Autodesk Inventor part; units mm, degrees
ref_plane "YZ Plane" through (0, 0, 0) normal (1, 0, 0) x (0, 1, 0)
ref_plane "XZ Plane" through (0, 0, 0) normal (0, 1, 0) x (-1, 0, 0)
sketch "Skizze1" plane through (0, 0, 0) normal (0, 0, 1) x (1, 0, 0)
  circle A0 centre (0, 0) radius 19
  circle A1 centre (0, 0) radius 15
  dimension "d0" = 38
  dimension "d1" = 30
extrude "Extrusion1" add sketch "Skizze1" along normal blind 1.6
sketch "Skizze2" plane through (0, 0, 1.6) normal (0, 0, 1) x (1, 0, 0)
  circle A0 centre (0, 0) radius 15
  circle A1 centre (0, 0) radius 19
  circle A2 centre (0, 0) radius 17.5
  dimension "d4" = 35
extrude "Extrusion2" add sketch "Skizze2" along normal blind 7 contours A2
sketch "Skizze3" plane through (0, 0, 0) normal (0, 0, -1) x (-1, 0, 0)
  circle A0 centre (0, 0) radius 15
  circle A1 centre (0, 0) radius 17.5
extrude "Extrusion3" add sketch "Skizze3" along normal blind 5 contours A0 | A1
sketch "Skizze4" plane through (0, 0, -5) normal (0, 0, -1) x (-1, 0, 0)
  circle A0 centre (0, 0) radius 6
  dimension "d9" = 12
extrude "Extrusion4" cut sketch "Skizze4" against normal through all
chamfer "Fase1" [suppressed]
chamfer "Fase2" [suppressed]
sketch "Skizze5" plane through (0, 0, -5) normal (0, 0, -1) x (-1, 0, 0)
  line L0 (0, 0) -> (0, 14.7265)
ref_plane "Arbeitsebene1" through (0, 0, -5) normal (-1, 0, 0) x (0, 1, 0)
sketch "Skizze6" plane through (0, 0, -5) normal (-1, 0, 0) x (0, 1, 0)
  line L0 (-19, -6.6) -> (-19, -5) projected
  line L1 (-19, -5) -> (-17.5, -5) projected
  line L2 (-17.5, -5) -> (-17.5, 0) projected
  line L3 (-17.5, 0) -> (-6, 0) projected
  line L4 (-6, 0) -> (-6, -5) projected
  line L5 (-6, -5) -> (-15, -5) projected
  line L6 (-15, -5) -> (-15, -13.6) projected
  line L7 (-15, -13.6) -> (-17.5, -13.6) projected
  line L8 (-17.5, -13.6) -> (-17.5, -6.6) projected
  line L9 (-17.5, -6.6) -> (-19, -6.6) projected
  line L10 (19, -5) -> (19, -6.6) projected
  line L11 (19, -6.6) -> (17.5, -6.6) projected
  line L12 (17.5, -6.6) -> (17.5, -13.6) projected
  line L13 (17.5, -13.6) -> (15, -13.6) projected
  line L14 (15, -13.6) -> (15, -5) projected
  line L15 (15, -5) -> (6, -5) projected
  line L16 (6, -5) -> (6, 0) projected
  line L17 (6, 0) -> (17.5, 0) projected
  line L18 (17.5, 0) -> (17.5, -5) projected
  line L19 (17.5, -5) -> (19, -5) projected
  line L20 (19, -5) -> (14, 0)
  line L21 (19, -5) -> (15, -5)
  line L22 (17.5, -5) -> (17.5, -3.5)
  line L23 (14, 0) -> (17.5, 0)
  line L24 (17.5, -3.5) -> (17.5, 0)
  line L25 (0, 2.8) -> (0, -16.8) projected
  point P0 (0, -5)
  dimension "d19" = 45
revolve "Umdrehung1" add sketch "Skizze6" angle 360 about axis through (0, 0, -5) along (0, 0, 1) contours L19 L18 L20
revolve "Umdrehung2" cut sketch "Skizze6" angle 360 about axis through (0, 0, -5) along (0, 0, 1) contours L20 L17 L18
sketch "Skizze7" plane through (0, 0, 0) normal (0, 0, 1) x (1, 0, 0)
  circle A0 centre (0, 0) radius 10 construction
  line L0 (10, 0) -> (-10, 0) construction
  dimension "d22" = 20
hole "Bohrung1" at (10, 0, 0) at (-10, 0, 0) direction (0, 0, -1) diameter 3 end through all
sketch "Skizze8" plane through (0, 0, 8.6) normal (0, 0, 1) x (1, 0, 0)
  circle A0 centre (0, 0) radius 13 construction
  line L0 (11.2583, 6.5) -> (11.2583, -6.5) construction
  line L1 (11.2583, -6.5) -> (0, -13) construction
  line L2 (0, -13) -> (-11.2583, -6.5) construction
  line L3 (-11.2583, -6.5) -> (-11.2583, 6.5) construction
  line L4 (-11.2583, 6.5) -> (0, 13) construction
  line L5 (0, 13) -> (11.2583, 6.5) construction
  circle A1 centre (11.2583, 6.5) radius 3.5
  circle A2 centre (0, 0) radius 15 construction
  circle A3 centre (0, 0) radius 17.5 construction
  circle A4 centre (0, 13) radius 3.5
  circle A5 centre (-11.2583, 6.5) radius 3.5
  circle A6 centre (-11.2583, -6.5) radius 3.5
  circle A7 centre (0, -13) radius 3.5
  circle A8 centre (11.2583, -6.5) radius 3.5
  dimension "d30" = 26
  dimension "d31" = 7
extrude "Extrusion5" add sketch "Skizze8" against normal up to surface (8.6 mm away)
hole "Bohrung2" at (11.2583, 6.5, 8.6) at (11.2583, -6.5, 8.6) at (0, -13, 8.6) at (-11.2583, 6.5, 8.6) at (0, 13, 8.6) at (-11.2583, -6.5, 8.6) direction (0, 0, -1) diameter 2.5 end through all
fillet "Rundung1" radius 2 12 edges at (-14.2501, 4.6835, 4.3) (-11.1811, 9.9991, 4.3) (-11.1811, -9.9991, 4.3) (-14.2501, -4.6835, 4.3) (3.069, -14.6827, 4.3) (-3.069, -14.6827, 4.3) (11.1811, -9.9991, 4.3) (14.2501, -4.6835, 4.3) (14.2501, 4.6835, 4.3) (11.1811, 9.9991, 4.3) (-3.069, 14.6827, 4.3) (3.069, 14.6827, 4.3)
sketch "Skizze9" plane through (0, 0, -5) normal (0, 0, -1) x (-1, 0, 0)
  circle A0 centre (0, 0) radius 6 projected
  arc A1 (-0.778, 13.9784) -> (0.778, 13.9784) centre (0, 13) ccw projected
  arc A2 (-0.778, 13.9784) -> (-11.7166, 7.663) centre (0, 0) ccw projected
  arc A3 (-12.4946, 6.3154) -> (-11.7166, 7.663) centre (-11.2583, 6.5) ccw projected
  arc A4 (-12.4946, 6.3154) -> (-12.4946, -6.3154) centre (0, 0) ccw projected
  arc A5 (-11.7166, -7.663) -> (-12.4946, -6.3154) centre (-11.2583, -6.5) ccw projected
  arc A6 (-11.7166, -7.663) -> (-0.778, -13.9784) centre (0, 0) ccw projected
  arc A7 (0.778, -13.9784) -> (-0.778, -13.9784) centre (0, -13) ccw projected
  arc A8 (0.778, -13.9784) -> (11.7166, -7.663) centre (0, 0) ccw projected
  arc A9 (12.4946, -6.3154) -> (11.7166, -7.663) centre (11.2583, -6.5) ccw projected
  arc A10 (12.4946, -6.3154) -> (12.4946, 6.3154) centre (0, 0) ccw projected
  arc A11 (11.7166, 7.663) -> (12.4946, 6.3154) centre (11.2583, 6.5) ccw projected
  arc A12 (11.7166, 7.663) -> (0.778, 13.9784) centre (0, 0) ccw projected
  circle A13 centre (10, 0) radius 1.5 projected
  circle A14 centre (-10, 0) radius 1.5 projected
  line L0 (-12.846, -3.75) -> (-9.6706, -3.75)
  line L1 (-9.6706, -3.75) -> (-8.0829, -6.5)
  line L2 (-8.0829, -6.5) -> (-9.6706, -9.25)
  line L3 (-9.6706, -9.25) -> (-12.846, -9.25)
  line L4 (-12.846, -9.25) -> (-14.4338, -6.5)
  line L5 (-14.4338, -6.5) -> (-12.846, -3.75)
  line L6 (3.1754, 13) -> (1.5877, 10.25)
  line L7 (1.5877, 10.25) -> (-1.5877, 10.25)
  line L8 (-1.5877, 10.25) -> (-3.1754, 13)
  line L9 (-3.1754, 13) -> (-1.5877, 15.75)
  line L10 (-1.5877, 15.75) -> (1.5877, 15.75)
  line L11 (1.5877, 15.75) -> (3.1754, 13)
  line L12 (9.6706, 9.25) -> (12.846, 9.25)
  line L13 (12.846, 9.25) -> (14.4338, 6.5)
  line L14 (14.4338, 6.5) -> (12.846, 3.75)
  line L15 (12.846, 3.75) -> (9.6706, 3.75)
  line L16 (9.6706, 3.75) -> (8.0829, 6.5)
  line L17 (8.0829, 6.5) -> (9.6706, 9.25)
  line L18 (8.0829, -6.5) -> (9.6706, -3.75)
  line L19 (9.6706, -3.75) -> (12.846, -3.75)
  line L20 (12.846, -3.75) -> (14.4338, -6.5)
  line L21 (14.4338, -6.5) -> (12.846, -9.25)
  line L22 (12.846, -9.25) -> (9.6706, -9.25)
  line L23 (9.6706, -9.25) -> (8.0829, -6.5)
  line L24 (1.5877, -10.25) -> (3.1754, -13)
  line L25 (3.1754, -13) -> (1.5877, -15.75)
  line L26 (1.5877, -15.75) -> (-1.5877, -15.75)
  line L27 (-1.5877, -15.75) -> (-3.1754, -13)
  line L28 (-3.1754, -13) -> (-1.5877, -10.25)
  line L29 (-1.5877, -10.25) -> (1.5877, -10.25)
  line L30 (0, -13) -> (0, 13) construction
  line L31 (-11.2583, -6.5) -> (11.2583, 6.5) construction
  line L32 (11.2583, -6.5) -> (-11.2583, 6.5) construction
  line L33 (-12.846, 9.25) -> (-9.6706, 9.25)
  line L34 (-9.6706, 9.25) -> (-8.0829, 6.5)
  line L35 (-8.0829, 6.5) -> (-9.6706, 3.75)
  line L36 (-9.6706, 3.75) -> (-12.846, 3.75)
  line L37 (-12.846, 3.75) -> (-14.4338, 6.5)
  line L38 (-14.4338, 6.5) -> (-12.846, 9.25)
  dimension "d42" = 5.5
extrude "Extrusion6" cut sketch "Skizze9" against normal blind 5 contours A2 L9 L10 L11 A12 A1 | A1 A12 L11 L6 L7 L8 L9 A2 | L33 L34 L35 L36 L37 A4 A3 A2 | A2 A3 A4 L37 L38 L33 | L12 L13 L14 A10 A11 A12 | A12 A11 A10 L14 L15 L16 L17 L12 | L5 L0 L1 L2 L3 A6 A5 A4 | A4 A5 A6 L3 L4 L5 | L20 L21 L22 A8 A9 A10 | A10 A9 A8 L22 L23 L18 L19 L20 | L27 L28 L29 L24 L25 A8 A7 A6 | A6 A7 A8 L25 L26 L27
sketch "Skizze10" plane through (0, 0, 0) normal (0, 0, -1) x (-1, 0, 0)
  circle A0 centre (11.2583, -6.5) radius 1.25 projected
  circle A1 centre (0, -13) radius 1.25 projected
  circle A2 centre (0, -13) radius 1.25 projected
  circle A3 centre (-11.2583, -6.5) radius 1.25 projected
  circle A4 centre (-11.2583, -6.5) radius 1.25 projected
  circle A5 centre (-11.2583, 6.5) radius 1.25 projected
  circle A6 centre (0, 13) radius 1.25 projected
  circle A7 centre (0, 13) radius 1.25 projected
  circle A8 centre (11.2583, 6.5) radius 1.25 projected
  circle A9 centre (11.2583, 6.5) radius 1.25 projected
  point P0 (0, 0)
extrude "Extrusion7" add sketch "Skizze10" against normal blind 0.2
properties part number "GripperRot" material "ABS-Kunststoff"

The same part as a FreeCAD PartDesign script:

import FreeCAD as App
import Part
import Sketcher

V = App.Vector
Q = App.Units.Quantity


def edges_at(feature, points):
    """Names of the edges that pass closest to the given points."""
    edges = feature.Shape.Edges
    near = lambda p: min(range(len(edges)), key=lambda i: edges[i].distToShape(Part.Vertex(*p))[0])
    return sorted({f"Edge{near(p) + 1}" for p in points})


def add_polygon(sketch, points):
    """Adds a closed chain of lines whose ends are joined by coincident constraints."""
    first, n = sketch.GeometryCount, len(points)
    for a, b in zip(points, points[1:] + points[:1]):
        sketch.addGeometry(Part.LineSegment(App.Vector(*a, 0), App.Vector(*b, 0)), False)
    for i in range(n):
        sketch.addConstraint(Sketcher.Constraint("Coincident", first + i, 2, first + (i + 1) % n, 1))

doc = App.newDocument("Part")
params = doc.addObject("Spreadsheet::Sheet", "Params")
for row, (alias, value) in enumerate([
    ("sketch1_diameter", "38 mm"),
    ("sketch1_diameter2", "30 mm"),
    ("pad1_length", "1.6 mm"),
    ("sketch2_diameter", "35 mm"),
    ("sketch2_diameter2", "30 mm"),
    ("pad2_length", "7 mm"),
    ("sketch3_diameter", "35 mm"),
    ("pad3_length", "5 mm"),
    ("sketch4_diameter", "12 mm"),
    ("sketch5_width", "1.5 mm"),
    ("revolution_angle", "360 deg"),
    ("sketch6_width", "3.5 mm"),
    ("groove_angle", "360 deg"),
    ("sketch7_diameter", "3 mm"),
    ("hole_diameter", "3 mm"),
    ("sketch8_diameter", "7 mm"),
    ("pad4_length", "8.6 mm"),
    ("sketch9_diameter", "2.5 mm"),
    ("hole2_diameter", "2.5 mm"),
    ("fillet_radius", "2 mm"),
    ("pocket2_length", "5 mm"),
    ("sketch11_diameter", "2.5 mm"),
    ("pad5_length", "0.2 mm"),
], start=1):
    params.set(f"A{row}", alias)
    params.set(f"B{row}", "=" + value)
    params.setAlias(f"B{row}", alias)

body = doc.addObject("PartDesign::Body", "Body")

sketch1 = doc.addObject("Sketcher::SketchObject", "Sketch")
body.addObject(sketch1)
sketch1.AttachmentSupport = (doc.XY_Plane, [""])
sketch1.MapMode = "FlatFace"
sketch1.addGeometry(Part.Circle(V(0, 0, 0), V(0, 0, 1), 19), False)
sketch1.addGeometry(Part.Circle(V(0, 0, 0), V(0, 0, 1), 15), False)
sketch1.addConstraint(Sketcher.Constraint("Coincident", 0, 3, -1, 1))
sketch1.addConstraint(Sketcher.Constraint("Coincident", 1, 3, -1, 1))
sketch1.addConstraint(Sketcher.Constraint("Diameter", 0, Q("38 mm")))
sketch1.addConstraint(Sketcher.Constraint("Diameter", 1, Q("30 mm")))
sketch1.setExpression("Constraints[2]", "Params.sketch1_diameter")
sketch1.setExpression("Constraints[3]", "Params.sketch1_diameter2")
pad1 = doc.addObject("PartDesign::Pad", "Pad")
body.addObject(pad1)
pad1.Profile = sketch1
pad1.setExpression("Length", "Params.pad1_length")

sketch2 = doc.addObject("Sketcher::SketchObject", "Sketch001")
body.addObject(sketch2)
sketch2.AttachmentSupport = (doc.XY_Plane, [""])
sketch2.MapMode = "FlatFace"
sketch2.AttachmentOffset = App.Placement(V(0, 0, 1.6), App.Rotation())
sketch2.addGeometry(Part.Circle(V(0, 0, 0), V(0, 0, 1), 17.5), False)
sketch2.addGeometry(Part.Circle(V(0, 0, 0), V(0, 0, 1), 15), False)
sketch2.addConstraint(Sketcher.Constraint("Coincident", 0, 3, -1, 1))
sketch2.addConstraint(Sketcher.Constraint("Coincident", 1, 3, -1, 1))
sketch2.addConstraint(Sketcher.Constraint("Diameter", 0, Q("35 mm")))
sketch2.addConstraint(Sketcher.Constraint("Diameter", 1, Q("30 mm")))
sketch2.setExpression("Constraints[2]", "Params.sketch2_diameter")
sketch2.setExpression("Constraints[3]", "Params.sketch2_diameter2")
pad2 = doc.addObject("PartDesign::Pad", "Pad001")
body.addObject(pad2)
pad2.Profile = sketch2
pad2.setExpression("Length", "Params.pad2_length")

sketch3 = doc.addObject("Sketcher::SketchObject", "Sketch002")
body.addObject(sketch3)
sketch3.AttachmentSupport = (doc.XY_Plane, [""])
sketch3.MapMode = "FlatFace"
sketch3.addGeometry(Part.Circle(V(0, 0, 0), V(0, 0, 1), 17.5), False)
sketch3.addConstraint(Sketcher.Constraint("Coincident", 0, 3, -1, 1))
sketch3.addConstraint(Sketcher.Constraint("Diameter", 0, Q("35 mm")))
sketch3.setExpression("Constraints[1]", "Params.sketch3_diameter")
pad3 = doc.addObject("PartDesign::Pad", "Pad002")
body.addObject(pad3)
pad3.Profile = sketch3
pad3.setExpression("Length", "Params.pad3_length")
pad3.Reversed = True

sketch4 = doc.addObject("Sketcher::SketchObject", "Sketch003")
body.addObject(sketch4)
sketch4.AttachmentSupport = (doc.XY_Plane, [""])
sketch4.MapMode = "FlatFace"
sketch4.AttachmentOffset = App.Placement(V(0, 0, -5), App.Rotation())
sketch4.addGeometry(Part.Circle(V(0, 0, 0), V(0, 0, 1), 6), False)
sketch4.addConstraint(Sketcher.Constraint("Coincident", 0, 3, -1, 1))
sketch4.addConstraint(Sketcher.Constraint("Diameter", 0, Q("12 mm")))
sketch4.setExpression("Constraints[1]", "Params.sketch4_diameter")
pocket1 = doc.addObject("PartDesign::Pocket", "Pocket")
body.addObject(pocket1)
pocket1.Profile = sketch4
pocket1.Type = "ThroughAll"
pocket1.Reversed = True

sketch5 = doc.addObject("Sketcher::SketchObject", "Sketch004")
body.addObject(sketch5)
sketch5.AttachmentSupport = (doc.YZ_Plane, [""])
sketch5.MapMode = "FlatFace"
add_polygon(sketch5, [(17.5, 0), (19, 0), (17.5, -1.5)])
sketch5.addConstraint(Sketcher.Constraint("Horizontal", 0))
sketch5.addConstraint(Sketcher.Constraint("Vertical", 2))
sketch5.addConstraint(Sketcher.Constraint("PointOnObject", 0, 2, -1))
sketch5.addConstraint(Sketcher.Constraint("Equal", 0, 2))
sketch5.addConstraint(Sketcher.Constraint("DistanceX", 0, 1, 0, 2, Q("1.5 mm")))
sketch5.addConstraint(Sketcher.Constraint("DistanceX", -1, 1, 0, 2, Q("19 mm")))
sketch5.setExpression("Constraints[7]", "Params.sketch5_width")
revolution = doc.addObject("PartDesign::Revolution", "Revolution")
body.addObject(revolution)
revolution.Profile = sketch5
revolution.ReferenceAxis = (sketch5, ["V_Axis"])
revolution.setExpression("Angle", "Params.revolution_angle")

sketch6 = doc.addObject("Sketcher::SketchObject", "Sketch005")
body.addObject(sketch6)
sketch6.AttachmentSupport = (doc.YZ_Plane, [""])
sketch6.MapMode = "FlatFace"
add_polygon(sketch6, [(14, -5), (17.5, -1.5), (17.5, -5)])
sketch6.addConstraint(Sketcher.Constraint("Vertical", 1))
sketch6.addConstraint(Sketcher.Constraint("Horizontal", 2))
sketch6.addConstraint(Sketcher.Constraint("Equal", 2, 1))
sketch6.addConstraint(Sketcher.Constraint("DistanceX", 2, 2, 2, 1, Q("3.5 mm")))
sketch6.addConstraint(Sketcher.Constraint("DistanceY", 1, 2, -1, 1, Q("5 mm")))
sketch6.addConstraint(Sketcher.Constraint("DistanceX", -1, 1, 2, 2, Q("14 mm")))
sketch6.setExpression("Constraints[6]", "Params.sketch6_width")
groove = doc.addObject("PartDesign::Groove", "Groove")
body.addObject(groove)
groove.Profile = sketch6
groove.ReferenceAxis = (sketch6, ["V_Axis"])
groove.setExpression("Angle", "Params.groove_angle")

sketch7 = doc.addObject("Sketcher::SketchObject", "Sketch006")
body.addObject(sketch7)
sketch7.AttachmentSupport = (doc.XY_Plane, [""])
sketch7.MapMode = "FlatFace"
sketch7.addGeometry(Part.Circle(V(10, 0, 0), V(0, 0, 1), 1.5), False)
sketch7.addGeometry(Part.Circle(V(-10, 0, 0), V(0, 0, 1), 1.5), False)
sketch7.addConstraint(Sketcher.Constraint("Equal", 0, 1))
sketch7.addConstraint(Sketcher.Constraint("Symmetric", 0, 3, 1, 3, -1, 1))
sketch7.addConstraint(Sketcher.Constraint("PointOnObject", 0, 3, -1))
sketch7.addConstraint(Sketcher.Constraint("Diameter", 0, Q("3 mm")))
sketch7.addConstraint(Sketcher.Constraint("DistanceX", -1, 1, 0, 3, Q("10 mm")))
sketch7.setExpression("Constraints[3]", "Params.sketch7_diameter")
doc.recompute()
hole = doc.addObject("PartDesign::Hole", "Hole")
body.addObject(hole)
hole.Profile = sketch7
hole.ThreadType = "None"
hole.setExpression("Diameter", "Params.hole_diameter")
hole.DepthType = "ThroughAll"

sketch8 = doc.addObject("Sketcher::SketchObject", "Sketch007")
body.addObject(sketch8)
sketch8.AttachmentSupport = (doc.XY_Plane, [""])
sketch8.MapMode = "FlatFace"
sketch8.AttachmentOffset = App.Placement(V(0, 0, 8.6), App.Rotation())
sketch8.addGeometry(Part.Circle(V(11.2583, 6.5, 0), V(0, 0, 1), 3.5), False)
sketch8.addGeometry(Part.Circle(V(0, 13, 0), V(0, 0, 1), 3.5), False)
sketch8.addGeometry(Part.Circle(V(-11.2583, 6.5, 0), V(0, 0, 1), 3.5), False)
sketch8.addGeometry(Part.Circle(V(-11.2583, -6.5, 0), V(0, 0, 1), 3.5), False)
sketch8.addGeometry(Part.Circle(V(0, -13, 0), V(0, 0, 1), 3.5), False)
sketch8.addGeometry(Part.Circle(V(11.2583, -6.5, 0), V(0, 0, 1), 3.5), False)
sketch8.addConstraint(Sketcher.Constraint("Equal", 0, 1))
sketch8.addConstraint(Sketcher.Constraint("Equal", 1, 2))
sketch8.addConstraint(Sketcher.Constraint("Equal", 2, 3))
sketch8.addConstraint(Sketcher.Constraint("Equal", 3, 4))
sketch8.addConstraint(Sketcher.Constraint("Equal", 4, 5))
sketch8.addConstraint(Sketcher.Constraint("Symmetric", 0, 3, 3, 3, -1, 1))
sketch8.addConstraint(Sketcher.Constraint("Symmetric", 1, 3, 4, 3, -1, 1))
sketch8.addConstraint(Sketcher.Constraint("Symmetric", 2, 3, 5, 3, -1, 1))
sketch8.addConstraint(Sketcher.Constraint("Symmetric", 0, 3, 2, 3, -2))
sketch8.addConstraint(Sketcher.Constraint("PointOnObject", 1, 3, -2))
sketch8.addConstraint(Sketcher.Constraint("Diameter", 0, Q("7 mm")))
sketch8.addConstraint(Sketcher.Constraint("DistanceY", 4, 3, 1, 3, Q("26 mm")))
sketch8.addConstraint(Sketcher.Constraint("DistanceY", 3, 3, 2, 3, Q("13 mm")))
sketch8.addConstraint(Sketcher.Constraint("DistanceX", -1, 1, 0, 3, Q("11.2583 mm")))
sketch8.setExpression("Constraints[10]", "Params.sketch8_diameter")
pad4 = doc.addObject("PartDesign::Pad", "Pad003")
body.addObject(pad4)
pad4.Profile = sketch8
pad4.setExpression("Length", "Params.pad4_length")
pad4.Reversed = True

sketch9 = doc.addObject("Sketcher::SketchObject", "Sketch008")
body.addObject(sketch9)
sketch9.AttachmentSupport = (doc.XY_Plane, [""])
sketch9.MapMode = "FlatFace"
sketch9.AttachmentOffset = App.Placement(V(0, 0, 8.6), App.Rotation())
sketch9.addGeometry(Part.Circle(V(11.2583, 6.5, 0), V(0, 0, 1), 1.25), False)
sketch9.addGeometry(Part.Circle(V(11.2583, -6.5, 0), V(0, 0, 1), 1.25), False)
sketch9.addGeometry(Part.Circle(V(0, -13, 0), V(0, 0, 1), 1.25), False)
sketch9.addGeometry(Part.Circle(V(-11.2583, 6.5, 0), V(0, 0, 1), 1.25), False)
sketch9.addGeometry(Part.Circle(V(0, 13, 0), V(0, 0, 1), 1.25), False)
sketch9.addGeometry(Part.Circle(V(-11.2583, -6.5, 0), V(0, 0, 1), 1.25), False)
sketch9.addConstraint(Sketcher.Constraint("Equal", 0, 1))
sketch9.addConstraint(Sketcher.Constraint("Equal", 1, 2))
sketch9.addConstraint(Sketcher.Constraint("Equal", 2, 3))
sketch9.addConstraint(Sketcher.Constraint("Equal", 3, 4))
sketch9.addConstraint(Sketcher.Constraint("Equal", 4, 5))
sketch9.addConstraint(Sketcher.Constraint("Symmetric", 1, 3, 3, 3, -1, 1))
sketch9.addConstraint(Sketcher.Constraint("Symmetric", 2, 3, 4, 3, -1, 1))
sketch9.addConstraint(Sketcher.Constraint("Symmetric", 0, 3, 5, 3, -1, 1))
sketch9.addConstraint(Sketcher.Constraint("Symmetric", 0, 3, 3, 3, -2))
sketch9.addConstraint(Sketcher.Constraint("PointOnObject", 2, 3, -2))
sketch9.addConstraint(Sketcher.Constraint("Diameter", 0, Q("2.5 mm")))
sketch9.addConstraint(Sketcher.Constraint("DistanceY", 2, 3, -1, 1, Q("13 mm")))
sketch9.addConstraint(Sketcher.Constraint("DistanceY", 1, 3, 0, 3, Q("13 mm")))
sketch9.addConstraint(Sketcher.Constraint("DistanceX", -1, 1, 0, 3, Q("11.2583 mm")))
sketch9.setExpression("Constraints[10]", "Params.sketch9_diameter")
doc.recompute()
hole2 = doc.addObject("PartDesign::Hole", "Hole001")
body.addObject(hole2)
hole2.Profile = sketch9
hole2.ThreadType = "None"
hole2.setExpression("Diameter", "Params.hole2_diameter")
hole2.DepthType = "ThroughAll"
doc.recompute()

fillet = doc.addObject("PartDesign::Fillet", "Fillet")
body.addObject(fillet)
fillet.Base = (hole2, edges_at(hole2, [
    (-14.25, 4.684, 4.3),
    (-11.181, 9.999, 4.3),
    (-11.181, -9.999, 4.3),
    (-14.25, -4.684, 4.3),
    (3.069, -14.683, 4.3),
    (-3.069, -14.683, 4.3),
    (11.181, -9.999, 4.3),
    (14.25, -4.684, 4.3),
    (14.25, 4.684, 4.3),
    (11.181, 9.999, 4.3),
    (-3.069, 14.683, 4.3),
    (3.069, 14.683, 4.3),
]))
fillet.setExpression("Radius", "Params.fillet_radius")

sketch10 = doc.addObject("Sketcher::SketchObject", "Sketch009")
body.addObject(sketch10)
sketch10.AttachmentSupport = (doc.XY_Plane, [""])
sketch10.MapMode = "FlatFace"
sketch10.AttachmentOffset = App.Placement(V(0, 0, -5), App.Rotation())
add_polygon(sketch10, [(1.5877, 15.75), (3.1754, 13), (1.5877, 10.25), (-1.5877, 10.25), (-3.1754, 13), (-1.5877, 15.75)])
add_polygon(sketch10, [(9.6706, 9.25), (12.846, 9.25), (14.4338, 6.5), (12.846, 3.75), (9.6706, 3.75), (8.0829, 6.5)])
add_polygon(sketch10, [(-12.846, 9.25), (-9.6706, 9.25), (-8.0829, 6.5), (-9.6706, 3.75), (-12.846, 3.75), (-14.4338, 6.5)])
add_polygon(sketch10, [(12.846, -3.75), (14.4338, -6.5), (12.846, -9.25), (9.6706, -9.25), (8.0829, -6.5), (9.6706, -3.75)])
add_polygon(sketch10, [(-14.4338, -6.5), (-12.846, -3.75), (-9.6706, -3.75), (-8.0829, -6.5), (-9.6706, -9.25), (-12.846, -9.25)])
add_polygon(sketch10, [(3.1754, -13), (1.5877, -15.75), (-1.5877, -15.75), (-3.1754, -13), (-1.5877, -10.25), (1.5877, -10.25)])
sketch10.addConstraint(Sketcher.Constraint("Horizontal", 2))
sketch10.addConstraint(Sketcher.Constraint("Horizontal", 5))
sketch10.addConstraint(Sketcher.Constraint("Horizontal", 6))
sketch10.addConstraint(Sketcher.Constraint("Horizontal", 9))
sketch10.addConstraint(Sketcher.Constraint("Horizontal", 12))
sketch10.addConstraint(Sketcher.Constraint("Horizontal", 15))
sketch10.addConstraint(Sketcher.Constraint("Horizontal", 20))
sketch10.addConstraint(Sketcher.Constraint("Horizontal", 23))
sketch10.addConstraint(Sketcher.Constraint("Horizontal", 25))
sketch10.addConstraint(Sketcher.Constraint("Horizontal", 28))
sketch10.addConstraint(Sketcher.Constraint("Horizontal", 31))
sketch10.addConstraint(Sketcher.Constraint("Horizontal", 34))
sketch10.addConstraint(Sketcher.Constraint("Symmetric", 16, 2, 18, 2, -1, 1))
sketch10.addConstraint(Sketcher.Constraint("Symmetric", 17, 2, 19, 2, -1, 1))
sketch10.addConstraint(Sketcher.Constraint("Symmetric", 13, 2, 21, 2, -1, 1))
sketch10.addConstraint(Sketcher.Constraint("Symmetric", 14, 2, 22, 2, -1, 1))
sketch10.addConstraint(Sketcher.Constraint("Symmetric", 8, 2, 24, 2, -1, 1))
sketch10.addConstraint(Sketcher.Constraint("Symmetric", 10, 2, 26, 2, -1, 1))
sketch10.addConstraint(Sketcher.Constraint("Symmetric", 11, 2, 27, 2, -1, 1))
sketch10.addConstraint(Sketcher.Constraint("Symmetric", 7, 2, 29, 2, -1, 1))
sketch10.addConstraint(Sketcher.Constraint("Symmetric", 4, 2, 30, 2, -1, 1))
sketch10.addConstraint(Sketcher.Constraint("Symmetric", 0, 2, 32, 2, -1, 1))
sketch10.addConstraint(Sketcher.Constraint("Symmetric", 1, 2, 33, 2, -1, 1))
sketch10.addConstraint(Sketcher.Constraint("Symmetric", 3, 2, 35, 2, -1, 1))
sketch10.addConstraint(Sketcher.Constraint("Symmetric", 0, 2, 3, 2, -2))
sketch10.addConstraint(Sketcher.Constraint("Symmetric", 11, 2, 12, 2, -2))
sketch10.addConstraint(Sketcher.Constraint("Symmetric", 10, 2, 13, 2, -2))
sketch10.addConstraint(Sketcher.Constraint("Symmetric", 9, 2, 14, 2, -2))
sketch10.addConstraint(Sketcher.Constraint("Symmetric", 7, 2, 16, 2, -2))
sketch10.addConstraint(Sketcher.Constraint("Parallel", 0, 3))
sketch10.addConstraint(Sketcher.Constraint("Parallel", 1, 4))
sketch10.addConstraint(Sketcher.Constraint("Parallel", 3, 7))
sketch10.addConstraint(Sketcher.Constraint("Parallel", 4, 8))
sketch10.addConstraint(Sketcher.Constraint("Parallel", 7, 10))
sketch10.addConstraint(Sketcher.Constraint("Parallel", 8, 11))
sketch10.addConstraint(Sketcher.Constraint("Parallel", 10, 13))
sketch10.addConstraint(Sketcher.Constraint("Parallel", 13, 16))
sketch10.addConstraint(Sketcher.Constraint("Parallel", 14, 17))
sketch10.addConstraint(Sketcher.Constraint("Parallel", 16, 18))
sketch10.addConstraint(Sketcher.Constraint("Parallel", 18, 21))
sketch10.addConstraint(Sketcher.Constraint("Parallel", 21, 26))
sketch10.addConstraint(Sketcher.Constraint("Parallel", 26, 29))
sketch10.addConstraint(Sketcher.Constraint("Parallel", 29, 32))
sketch10.addConstraint(Sketcher.Constraint("Parallel", 32, 35))
sketch10.addConstraint(Sketcher.Constraint("Horizontal", 7, 2, 10, 2))
sketch10.addConstraint(Sketcher.Constraint("Vertical", 2, 2, 4, 2))
sketch10.addConstraint(Sketcher.Constraint("Vertical", 6, 2, 8, 2))
sketch10.addConstraint(Sketcher.Constraint("Equal", 5, 6))
sketch10.addConstraint(Sketcher.Constraint("Equal", 4, 7))
sketch10.addConstraint(Sketcher.Constraint("DistanceY", 2, 2, 4, 2, Q("5.5 mm")))
sketch10.addConstraint(Sketcher.Constraint("Angle", 0, Q("-60.0002 deg")))
sketch10.addConstraint(Sketcher.Constraint("DistanceY", -1, 1, 0, 2, Q("13 mm")))
sketch10.addConstraint(Sketcher.Constraint("DistanceY", 6, 2, 1, 2, Q("1 mm")))
sketch10.addConstraint(Sketcher.Constraint("DistanceX", 2, 2, 2, 1, Q("3.1754 mm")))
sketch10.addConstraint(Sketcher.Constraint("DistanceX", -1, 1, 6, 2, Q("12.846 mm")))
pocket2 = doc.addObject("PartDesign::Pocket", "Pocket001")
body.addObject(pocket2)
pocket2.Profile = sketch10
pocket2.setExpression("Length", "Params.pocket2_length")
pocket2.Reversed = True

sketch11 = doc.addObject("Sketcher::SketchObject", "Sketch010")
body.addObject(sketch11)
sketch11.AttachmentSupport = (doc.XY_Plane, [""])
sketch11.MapMode = "FlatFace"
sketch11.addGeometry(Part.Circle(V(-11.2583, -6.5, 0), V(0, 0, 1), 1.25), False)
sketch11.addGeometry(Part.Circle(V(0, -13, 0), V(0, 0, 1), 1.25), False)
sketch11.addGeometry(Part.Circle(V(11.2583, -6.5, 0), V(0, 0, 1), 1.25), False)
sketch11.addGeometry(Part.Circle(V(11.2583, 6.5, 0), V(0, 0, 1), 1.25), False)
sketch11.addGeometry(Part.Circle(V(0, 13, 0), V(0, 0, 1), 1.25), False)
sketch11.addGeometry(Part.Circle(V(-11.2583, 6.5, 0), V(0, 0, 1), 1.25), False)
sketch11.addConstraint(Sketcher.Constraint("Equal", 0, 1))
sketch11.addConstraint(Sketcher.Constraint("Equal", 1, 2))
sketch11.addConstraint(Sketcher.Constraint("Equal", 2, 3))
sketch11.addConstraint(Sketcher.Constraint("Equal", 3, 4))
sketch11.addConstraint(Sketcher.Constraint("Equal", 4, 5))
sketch11.addConstraint(Sketcher.Constraint("Symmetric", 0, 3, 3, 3, -1, 1))
sketch11.addConstraint(Sketcher.Constraint("Symmetric", 1, 3, 4, 3, -1, 1))
sketch11.addConstraint(Sketcher.Constraint("Symmetric", 2, 3, 5, 3, -1, 1))
sketch11.addConstraint(Sketcher.Constraint("Symmetric", 0, 3, 2, 3, -2))
sketch11.addConstraint(Sketcher.Constraint("PointOnObject", 1, 3, -2))
sketch11.addConstraint(Sketcher.Constraint("Diameter", 0, Q("2.5 mm")))
sketch11.addConstraint(Sketcher.Constraint("DistanceY", 1, 3, -1, 1, Q("13 mm")))
sketch11.addConstraint(Sketcher.Constraint("DistanceY", 2, 3, 3, 3, Q("13 mm")))
sketch11.addConstraint(Sketcher.Constraint("DistanceX", 0, 3, -1, 1, Q("11.2583 mm")))
sketch11.setExpression("Constraints[10]", "Params.sketch11_diameter")
pad5 = doc.addObject("PartDesign::Pad", "Pad004")
body.addObject(pad5)
pad5.Profile = sketch11
pad5.setExpression("Length", "Params.pad5_length")

doc.recompute()
